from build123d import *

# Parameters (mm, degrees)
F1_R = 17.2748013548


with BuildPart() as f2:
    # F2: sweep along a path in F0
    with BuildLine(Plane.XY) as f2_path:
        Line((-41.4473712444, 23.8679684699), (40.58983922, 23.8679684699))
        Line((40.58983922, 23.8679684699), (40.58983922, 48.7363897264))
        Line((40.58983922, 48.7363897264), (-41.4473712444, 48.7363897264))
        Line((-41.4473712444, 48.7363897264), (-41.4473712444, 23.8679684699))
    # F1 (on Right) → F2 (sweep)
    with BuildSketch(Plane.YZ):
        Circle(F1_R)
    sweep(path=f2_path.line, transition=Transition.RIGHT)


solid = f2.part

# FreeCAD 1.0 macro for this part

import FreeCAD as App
import Part
import Sketcher
Q = App.Units.Quantity


def add_polygon(sketch, points):
    """Adds a closed chain of lines whose ends are joined by coincident constraints."""
    first, n = sketch.GeometryCount, len(points)
    for a, b in zip(points, points[1:] + points[:1]):
        sketch.addGeometry(Part.LineSegment(App.Vector(*a, 0), App.Vector(*b, 0)), False)
    for i in range(n):
        sketch.addConstraint(Sketcher.Constraint("Coincident", first + i, 2, first + (i + 1) % n, 1))

doc = App.newDocument("Part")
body = doc.addObject("PartDesign::Body", "Body")

sketch1 = body.newObject("Sketcher::SketchObject", "Sketch")
sketch1.AttachmentSupport = (doc.getObject("YZ_Plane"), [""])
sketch1.MapMode = "FlatFace"
sketch1.addGeometry(Part.Circle(App.Vector(0, 0, 0), App.Vector(0, 0, 1), 17), False)
sketch1.addConstraint(Sketcher.Constraint("Coincident", 0, 3, -1, 1))
sketch1.addConstraint(Sketcher.Constraint("Diameter", 0, Q("34.549603 mm")))

sketch2 = body.newObject("Sketcher::SketchObject", "Sketch001")
sketch2.AttachmentSupport = (doc.getObject("XY_Plane"), [""])
sketch2.MapMode = "FlatFace"
add_polygon(sketch2, [(-41, 24), (41, 24), (41, 49), (-41, 49)])
sketch2.addConstraint(Sketcher.Constraint("Horizontal", 0))
sketch2.addConstraint(Sketcher.Constraint("Vertical", 1))
sketch2.addConstraint(Sketcher.Constraint("Horizontal", 2))
sketch2.addConstraint(Sketcher.Constraint("Vertical", 3))
sketch2.addConstraint(Sketcher.Constraint("DistanceX", 0, 1, 0, 2, Q("82.03721 mm")))
sketch2.addConstraint(Sketcher.Constraint("DistanceY", 1, 1, 1, 2, Q("24.868421 mm")))
sketch2.addConstraint(Sketcher.Constraint("DistanceX", -1, 1, 0, 2, Q("40.589839 mm")))
sketch2.addConstraint(Sketcher.Constraint("DistanceY", -1, 1, 0, 2, Q("23.867968 mm")))
doc.recompute()

additivepipe = body.newObject("PartDesign::AdditivePipe", "AdditivePipe")
additivepipe.Profile = sketch1
additivepipe.Spine = (sketch2, ["Edge1", "Edge2", "Edge3", "Edge4"])
additivepipe.Transition = "Right corner"

doc.recompute()
